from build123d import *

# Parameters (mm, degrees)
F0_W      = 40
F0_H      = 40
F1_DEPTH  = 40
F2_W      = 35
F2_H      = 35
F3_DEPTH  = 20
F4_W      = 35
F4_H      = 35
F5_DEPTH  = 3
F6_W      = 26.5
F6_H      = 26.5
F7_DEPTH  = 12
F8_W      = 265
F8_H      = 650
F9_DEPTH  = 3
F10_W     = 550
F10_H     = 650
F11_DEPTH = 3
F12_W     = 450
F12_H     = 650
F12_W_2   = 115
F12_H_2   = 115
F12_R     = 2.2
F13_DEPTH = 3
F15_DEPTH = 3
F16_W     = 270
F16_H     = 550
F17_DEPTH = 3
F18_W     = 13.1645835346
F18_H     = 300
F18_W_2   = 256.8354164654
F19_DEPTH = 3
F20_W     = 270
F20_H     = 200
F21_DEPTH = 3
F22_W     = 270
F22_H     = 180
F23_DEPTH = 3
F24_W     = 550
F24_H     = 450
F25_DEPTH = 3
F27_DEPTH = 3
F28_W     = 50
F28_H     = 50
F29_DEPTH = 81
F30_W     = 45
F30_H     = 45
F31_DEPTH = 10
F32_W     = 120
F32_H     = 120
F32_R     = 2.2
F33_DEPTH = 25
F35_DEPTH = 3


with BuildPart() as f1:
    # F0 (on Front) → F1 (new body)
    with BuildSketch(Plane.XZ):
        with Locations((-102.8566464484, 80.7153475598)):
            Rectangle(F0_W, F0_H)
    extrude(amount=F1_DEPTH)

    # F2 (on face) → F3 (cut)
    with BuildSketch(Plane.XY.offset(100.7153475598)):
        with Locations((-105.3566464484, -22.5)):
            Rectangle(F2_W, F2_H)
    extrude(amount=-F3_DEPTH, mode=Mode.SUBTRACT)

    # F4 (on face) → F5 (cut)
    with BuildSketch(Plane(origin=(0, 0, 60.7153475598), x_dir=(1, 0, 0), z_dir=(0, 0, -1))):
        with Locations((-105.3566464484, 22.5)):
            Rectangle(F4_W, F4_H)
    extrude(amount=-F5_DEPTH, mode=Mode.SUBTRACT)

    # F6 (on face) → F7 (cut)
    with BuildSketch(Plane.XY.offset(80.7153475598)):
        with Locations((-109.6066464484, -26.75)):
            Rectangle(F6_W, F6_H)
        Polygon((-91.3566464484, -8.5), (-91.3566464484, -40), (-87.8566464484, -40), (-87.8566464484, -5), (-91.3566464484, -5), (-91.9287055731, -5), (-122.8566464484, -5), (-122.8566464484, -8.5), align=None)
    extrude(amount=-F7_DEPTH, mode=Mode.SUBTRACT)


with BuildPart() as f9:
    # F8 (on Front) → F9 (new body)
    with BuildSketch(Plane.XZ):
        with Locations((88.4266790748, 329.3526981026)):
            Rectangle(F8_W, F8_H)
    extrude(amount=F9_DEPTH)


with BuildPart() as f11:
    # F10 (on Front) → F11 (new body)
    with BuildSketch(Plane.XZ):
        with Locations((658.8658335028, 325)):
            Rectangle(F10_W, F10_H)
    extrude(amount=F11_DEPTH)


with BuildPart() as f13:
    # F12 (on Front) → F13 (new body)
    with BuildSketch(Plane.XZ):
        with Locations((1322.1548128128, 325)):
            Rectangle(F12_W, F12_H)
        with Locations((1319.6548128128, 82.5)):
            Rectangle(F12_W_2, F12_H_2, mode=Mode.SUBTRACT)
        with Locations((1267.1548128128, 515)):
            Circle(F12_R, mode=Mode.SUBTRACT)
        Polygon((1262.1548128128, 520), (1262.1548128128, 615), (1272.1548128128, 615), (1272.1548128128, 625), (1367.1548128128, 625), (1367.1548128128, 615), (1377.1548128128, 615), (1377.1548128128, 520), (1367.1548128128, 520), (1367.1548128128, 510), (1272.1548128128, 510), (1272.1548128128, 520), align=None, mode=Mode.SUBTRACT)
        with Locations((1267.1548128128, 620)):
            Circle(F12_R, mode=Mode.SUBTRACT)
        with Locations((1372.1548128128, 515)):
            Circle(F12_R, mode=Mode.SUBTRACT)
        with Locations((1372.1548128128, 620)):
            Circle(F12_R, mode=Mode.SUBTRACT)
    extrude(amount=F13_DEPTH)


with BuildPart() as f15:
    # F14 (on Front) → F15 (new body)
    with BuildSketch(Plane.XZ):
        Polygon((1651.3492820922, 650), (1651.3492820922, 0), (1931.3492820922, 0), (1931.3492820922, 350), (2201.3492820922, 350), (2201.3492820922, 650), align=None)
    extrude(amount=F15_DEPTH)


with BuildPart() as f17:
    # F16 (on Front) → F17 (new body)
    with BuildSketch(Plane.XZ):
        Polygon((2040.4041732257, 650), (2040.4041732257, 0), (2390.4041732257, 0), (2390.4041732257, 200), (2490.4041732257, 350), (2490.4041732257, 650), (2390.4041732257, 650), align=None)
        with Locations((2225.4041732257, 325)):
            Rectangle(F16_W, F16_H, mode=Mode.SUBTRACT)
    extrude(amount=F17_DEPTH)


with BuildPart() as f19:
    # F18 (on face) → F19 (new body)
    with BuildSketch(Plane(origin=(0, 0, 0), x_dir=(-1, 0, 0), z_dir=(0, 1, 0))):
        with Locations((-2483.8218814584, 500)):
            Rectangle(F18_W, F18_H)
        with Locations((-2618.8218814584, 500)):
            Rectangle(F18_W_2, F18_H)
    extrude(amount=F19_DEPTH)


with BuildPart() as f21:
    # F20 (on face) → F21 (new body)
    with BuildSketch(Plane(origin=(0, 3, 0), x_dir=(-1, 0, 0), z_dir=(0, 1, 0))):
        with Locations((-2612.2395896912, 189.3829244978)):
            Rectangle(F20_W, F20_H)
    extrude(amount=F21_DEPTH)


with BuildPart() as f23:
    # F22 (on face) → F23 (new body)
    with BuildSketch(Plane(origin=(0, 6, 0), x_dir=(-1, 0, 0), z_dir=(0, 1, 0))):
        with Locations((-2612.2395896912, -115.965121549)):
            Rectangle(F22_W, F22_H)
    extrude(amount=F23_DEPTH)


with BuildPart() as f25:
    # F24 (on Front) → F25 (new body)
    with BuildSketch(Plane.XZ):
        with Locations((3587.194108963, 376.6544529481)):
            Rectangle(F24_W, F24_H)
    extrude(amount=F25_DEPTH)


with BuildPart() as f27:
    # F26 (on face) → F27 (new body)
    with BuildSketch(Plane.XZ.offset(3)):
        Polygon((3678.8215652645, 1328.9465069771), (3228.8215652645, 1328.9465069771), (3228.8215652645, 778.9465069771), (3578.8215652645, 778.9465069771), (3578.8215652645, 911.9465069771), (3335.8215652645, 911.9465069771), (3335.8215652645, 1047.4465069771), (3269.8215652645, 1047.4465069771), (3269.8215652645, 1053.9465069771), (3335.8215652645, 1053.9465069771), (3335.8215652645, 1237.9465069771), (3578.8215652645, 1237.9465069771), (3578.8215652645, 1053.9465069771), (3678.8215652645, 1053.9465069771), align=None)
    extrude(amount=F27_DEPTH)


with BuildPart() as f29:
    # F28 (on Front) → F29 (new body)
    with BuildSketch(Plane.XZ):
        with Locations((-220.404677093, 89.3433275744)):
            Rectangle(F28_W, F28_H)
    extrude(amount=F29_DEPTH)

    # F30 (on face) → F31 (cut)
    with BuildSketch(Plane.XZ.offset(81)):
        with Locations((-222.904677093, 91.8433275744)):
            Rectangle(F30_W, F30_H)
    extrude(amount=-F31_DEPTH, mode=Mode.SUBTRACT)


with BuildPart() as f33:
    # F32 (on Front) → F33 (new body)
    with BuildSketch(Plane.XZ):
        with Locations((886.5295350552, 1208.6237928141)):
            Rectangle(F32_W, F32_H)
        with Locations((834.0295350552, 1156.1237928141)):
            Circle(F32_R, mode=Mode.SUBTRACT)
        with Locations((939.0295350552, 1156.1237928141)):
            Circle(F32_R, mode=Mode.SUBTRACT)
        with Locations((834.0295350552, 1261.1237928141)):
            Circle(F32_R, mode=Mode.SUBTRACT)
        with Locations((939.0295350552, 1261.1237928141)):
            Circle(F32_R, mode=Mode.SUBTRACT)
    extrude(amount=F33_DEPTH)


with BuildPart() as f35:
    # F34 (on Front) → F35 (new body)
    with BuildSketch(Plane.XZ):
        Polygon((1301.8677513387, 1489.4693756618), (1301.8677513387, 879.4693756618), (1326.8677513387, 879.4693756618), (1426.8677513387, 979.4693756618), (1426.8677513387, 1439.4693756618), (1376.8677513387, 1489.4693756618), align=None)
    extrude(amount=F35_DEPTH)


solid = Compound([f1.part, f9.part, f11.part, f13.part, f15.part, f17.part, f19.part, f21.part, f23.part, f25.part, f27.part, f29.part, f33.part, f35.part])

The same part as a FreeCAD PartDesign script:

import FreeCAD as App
import Part
import Sketcher
Q = App.Units.Quantity

doc = App.newDocument("Part")
body = doc.addObject("PartDesign::Body", "Body")

# Sketch on XZ plane
sketch1 = doc.addObject("Sketcher::SketchObject", "Sketch")
body.addObject(sketch1)
sketch1.AttachmentSupport = (doc.XZ_Plane, [""])
sketch1.MapMode = "FlatFace"
sketch1.addGeometry([
    Part.LineSegment(App.Vector(-123, 101, 0), App.Vector(-123, 61, 0)),
    Part.LineSegment(App.Vector(-123, 61, 0), App.Vector(-83, 61, 0)),
    Part.LineSegment(App.Vector(-83, 61, 0), App.Vector(-83, 101, 0)),
    Part.LineSegment(App.Vector(-83, 101, 0), App.Vector(-123, 101, 0)),
], False)
sketch1.addConstraint([
    Sketcher.Constraint("Coincident", 0, 2, 1, 1),
    Sketcher.Constraint("Coincident", 1, 2, 2, 1),
    Sketcher.Constraint("Coincident", 2, 2, 3, 1),
    Sketcher.Constraint("Coincident", 3, 2, 0, 1),
    Sketcher.Constraint("Vertical", 0),
    Sketcher.Constraint("Horizontal", 1),
    Sketcher.Constraint("Vertical", 2),
    Sketcher.Constraint("Horizontal", 3),
    Sketcher.Constraint("Equal", 3, 0),
    Sketcher.Constraint("DistanceX", 1, 1, 1, 2, 40.0),
    Sketcher.Constraint("DistanceX", 0, 2, -1, 1, 122.856646),
    Sketcher.Constraint("DistanceY", -1, 1, 0, 2, 60.715348),
])
pad1 = doc.addObject("PartDesign::Pad", "Pad")
body.addObject(pad1)
pad1.Profile = sketch1
pad1.Length = 40

# Sketch on XY plane
sketch2 = doc.addObject("Sketcher::SketchObject", "Sketch001")
body.addObject(sketch2)
sketch2.AttachmentSupport = (doc.XY_Plane, [""])
sketch2.MapMode = "FlatFace"
sketch2.AttachmentOffset = App.Placement(App.Vector(0, 0, 100.715348), App.Rotation())
sketch2.addGeometry([
    Part.LineSegment(App.Vector(-123, -5, 0), App.Vector(-123, -40, 0)),
    Part.LineSegment(App.Vector(-123, -40, 0), App.Vector(-88, -40, 0)),
    Part.LineSegment(App.Vector(-88, -40, 0), App.Vector(-88, -5, 0)),
    Part.LineSegment(App.Vector(-88, -5, 0), App.Vector(-123, -5, 0)),
], False)
sketch2.addConstraint([
    Sketcher.Constraint("Coincident", 0, 2, 1, 1),
    Sketcher.Constraint("Coincident", 1, 2, 2, 1),
    Sketcher.Constraint("Coincident", 2, 2, 3, 1),
    Sketcher.Constraint("Coincident", 3, 2, 0, 1),
    Sketcher.Constraint("Vertical", 0),
    Sketcher.Constraint("Horizontal", 1),
    Sketcher.Constraint("Vertical", 2),
    Sketcher.Constraint("Horizontal", 3),
    Sketcher.Constraint("Equal", 3, 0),
    Sketcher.Constraint("DistanceX", 1, 1, 1, 2, 35.0),
    Sketcher.Constraint("DistanceY", 0, 2, -1, 1, 40.0),
    Sketcher.Constraint("DistanceX", 0, 2, -1, 1, 122.856646),
])
pocket1 = doc.addObject("PartDesign::Pocket", "Pocket")
body.addObject(pocket1)
pocket1.Profile = sketch2
pocket1.Length = 20

# Sketch on XY plane
sketch3 = doc.addObject("Sketcher::SketchObject", "Sketch002")
body.addObject(sketch3)
sketch3.AttachmentSupport = (doc.XY_Plane, [""])
sketch3.MapMode = "FlatFace"
sketch3.AttachmentOffset = App.Placement(App.Vector(0, 0, 60.715348), App.Rotation())
sketch3.addGeometry([
    Part.LineSegment(App.Vector(-123, -40, 0), App.Vector(-123, -5, 0)),
    Part.LineSegment(App.Vector(-123, -5, 0), App.Vector(-88, -5, 0)),
    Part.LineSegment(App.Vector(-88, -5, 0), App.Vector(-88, -40, 0)),
    Part.LineSegment(App.Vector(-88, -40, 0), App.Vector(-123, -40, 0)),
], False)
sketch3.addConstraint([
    Sketcher.Constraint("Coincident", 0, 2, 1, 1),
    Sketcher.Constraint("Coincident", 1, 2, 2, 1),
    Sketcher.Constraint("Coincident", 2, 2, 3, 1),
    Sketcher.Constraint("Coincident", 3, 2, 0, 1),
    Sketcher.Constraint("Vertical", 0),
    Sketcher.Constraint("Horizontal", 1),
    Sketcher.Constraint("Vertical", 2),
    Sketcher.Constraint("Horizontal", 3),
    Sketcher.Constraint("Equal", 3, 0),
    Sketcher.Constraint("DistanceX", 1, 1, 1, 2, 35.0),
    Sketcher.Constraint("DistanceY", 0, 2, -1, 1, 5.0),
    Sketcher.Constraint("DistanceX", 0, 2, -1, 1, 122.856646),
])
pocket2 = doc.addObject("PartDesign::Pocket", "Pocket001")
body.addObject(pocket2)
pocket2.Profile = sketch3
pocket2.Length = 3
pocket2.Reversed = True

# Sketch on XY plane
sketch4 = doc.addObject("Sketcher::SketchObject", "Sketch003")
body.addObject(sketch4)
sketch4.AttachmentSupport = (doc.XY_Plane, [""])
sketch4.MapMode = "FlatFace"
sketch4.AttachmentOffset = App.Placement(App.Vector(0, 0, 80.715348), App.Rotation())
sketch4.addGeometry([
    Part.LineSegment(App.Vector(-122.9, -13.5, 0), App.Vector(-122.9, -40, 0)),  # 0
    Part.LineSegment(App.Vector(-122.9, -40, 0), App.Vector(-96.4, -40, 0)),  # 1
    Part.LineSegment(App.Vector(-96.4, -40, 0), App.Vector(-96.4, -13.5, 0)),  # 2
    Part.LineSegment(App.Vector(-96.4, -13.5, 0), App.Vector(-122.9, -13.5, 0)),  # 3
    Part.LineSegment(App.Vector(-91.4, -8.5, 0), App.Vector(-91.4, -40, 0)),  # 4
    Part.LineSegment(App.Vector(-91.4, -40, 0), App.Vector(-87.9, -40, 0)),  # 5
    Part.LineSegment(App.Vector(-87.9, -40, 0), App.Vector(-87.9, -5, 0)),  # 6
    Part.LineSegment(App.Vector(-87.9, -5, 0), App.Vector(-122.9, -5, 0)),  # 7
    Part.LineSegment(App.Vector(-122.9, -5, 0), App.Vector(-122.9, -8.5, 0)),  # 8
    Part.LineSegment(App.Vector(-122.9, -8.5, 0), App.Vector(-91.4, -8.5, 0)),  # 9
], False)
sketch4.addConstraint([
    Sketcher.Constraint("Coincident", 0, 2, 1, 1),
    Sketcher.Constraint("Coincident", 1, 2, 2, 1),
    Sketcher.Constraint("Coincident", 2, 2, 3, 1),
    Sketcher.Constraint("Coincident", 3, 2, 0, 1),
    Sketcher.Constraint("Coincident", 4, 2, 5, 1),
    Sketcher.Constraint("Coincident", 5, 2, 6, 1),
    Sketcher.Constraint("Coincident", 6, 2, 7, 1),
    Sketcher.Constraint("Coincident", 7, 2, 8, 1),
    Sketcher.Constraint("Coincident", 8, 2, 9, 1),
    Sketcher.Constraint("Coincident", 9, 2, 4, 1),
    Sketcher.Constraint("Vertical", 0),
    Sketcher.Constraint("Horizontal", 1),
    Sketcher.Constraint("Vertical", 2),
    Sketcher.Constraint("Horizontal", 3),
    Sketcher.Constraint("Vertical", 4),
    Sketcher.Constraint("Horizontal", 5),
    Sketcher.Constraint("Vertical", 6),
    Sketcher.Constraint("Horizontal", 7),
    Sketcher.Constraint("Vertical", 8),
    Sketcher.Constraint("Horizontal", 9),
    Sketcher.Constraint("Horizontal", 1, 2, 4, 2),
    Sketcher.Constraint("Vertical", 3, 2, 7, 2),
    Sketcher.Constraint("Equal", 3, 0),
    Sketcher.Constraint("Equal", 9, 4),
    Sketcher.Constraint("Equal", 7, 6),
    Sketcher.Constraint("DistanceX", 7, 2, 7, 1, 35.0),
    Sketcher.Constraint("DistanceX", 1, 1, 1, 2, 26.5),
    Sketcher.Constraint("DistanceX", 5, 1, 5, 2, 3.5),
    Sketcher.Constraint("DistanceY", 0, 2, -1, 1, 40.0),
    Sketcher.Constraint("DistanceX", 0, 2, -1, 1, 122.856646),
])
pocket3 = doc.addObject("PartDesign::Pocket", "Pocket002")
body.addObject(pocket3)
pocket3.Profile = sketch4
pocket3.Length = 12
body2 = doc.addObject("PartDesign::Body", "Body001")

# Sketch on XZ plane
sketch5 = doc.addObject("Sketcher::SketchObject", "Sketch004")
body2.addObject(sketch5)
sketch5.AttachmentSupport = (doc.getObject("XZ_Plane001"), [""])
sketch5.MapMode = "FlatFace"
sketch5.addGeometry([
    Part.LineSegment(App.Vector(-44, 654, 0), App.Vector(-44, 4, 0)),
    Part.LineSegment(App.Vector(-44, 4, 0), App.Vector(221, 4, 0)),
    Part.LineSegment(App.Vector(221, 4, 0), App.Vector(221, 654, 0)),
    Part.LineSegment(App.Vector(221, 654, 0), App.Vector(-44, 654, 0)),
], False)
sketch5.addConstraint([
    Sketcher.Constraint("Coincident", 0, 2, 1, 1),
    Sketcher.Constraint("Coincident", 1, 2, 2, 1),
    Sketcher.Constraint("Coincident", 2, 2, 3, 1),
    Sketcher.Constraint("Coincident", 3, 2, 0, 1),
    Sketcher.Constraint("Vertical", 0),
    Sketcher.Constraint("Horizontal", 1),
    Sketcher.Constraint("Vertical", 2),
    Sketcher.Constraint("Horizontal", 3),
    Sketcher.Constraint("DistanceX", 1, 1, 1, 2, 265.0),
    Sketcher.Constraint("DistanceY", 0, 2, 0, 1, 650.0),
    Sketcher.Constraint("DistanceY", -1, 1, 0, 2, 4.352698),
    Sketcher.Constraint("DistanceX", 0, 2, -1, 1, 44.073321),
])
pad2 = doc.addObject("PartDesign::Pad", "Pad001")
body2.addObject(pad2)
pad2.Profile = sketch5
pad2.Length = 3
body3 = doc.addObject("PartDesign::Body", "Body002")

# Sketch on XZ plane
sketch6 = doc.addObject("Sketcher::SketchObject", "Sketch005")
body3.addObject(sketch6)
sketch6.AttachmentSupport = (doc.getObject("XZ_Plane002"), [""])
sketch6.MapMode = "FlatFace"
sketch6.addGeometry([
    Part.LineSegment(App.Vector(384, 650, 0), App.Vector(384, 0, 0)),
    Part.LineSegment(App.Vector(384, 0, 0), App.Vector(934, 0, 0)),
    Part.LineSegment(App.Vector(934, 0, 0), App.Vector(934, 650, 0)),
    Part.LineSegment(App.Vector(934, 650, 0), App.Vector(384, 650, 0)),
], False)
sketch6.addConstraint([
    Sketcher.Constraint("Coincident", 0, 2, 1, 1),
    Sketcher.Constraint("Coincident", 1, 2, 2, 1),
    Sketcher.Constraint("Coincident", 2, 2, 3, 1),
    Sketcher.Constraint("Coincident", 3, 2, 0, 1),
    Sketcher.Constraint("Vertical", 0),
    Sketcher.Constraint("Horizontal", 1),
    Sketcher.Constraint("Vertical", 2),
    Sketcher.Constraint("Horizontal", 3),
    Sketcher.Constraint("PointOnObject", 0, 2, -1),
    Sketcher.Constraint("DistanceX", 1, 1, 1, 2, 550.0),
    Sketcher.Constraint("DistanceY", 0, 2, 0, 1, 650.0),
    Sketcher.Constraint("DistanceX", -1, 1, 0, 2, 383.865834),
])
pad3 = doc.addObject("PartDesign::Pad", "Pad002")
body3.addObject(pad3)
pad3.Profile = sketch6
pad3.Length = 3
body4 = doc.addObject("PartDesign::Body", "Body003")

# Sketch on XZ plane
sketch7 = doc.addObject("Sketcher::SketchObject", "Sketch006")
body4.addObject(sketch7)
sketch7.AttachmentSupport = (doc.getObject("XZ_Plane003"), [""])
sketch7.MapMode = "FlatFace"
sketch7.addGeometry([
    Part.LineSegment(App.Vector(1097.2, 650, 0), App.Vector(1097.2, 0, 0)),  # 0
    Part.LineSegment(App.Vector(1097.2, 0, 0), App.Vector(1547.2, 0, 0)),  # 1
    Part.LineSegment(App.Vector(1547.2, 0, 0), App.Vector(1547.2, 650, 0)),  # 2
    Part.LineSegment(App.Vector(1547.2, 650, 0), App.Vector(1097.2, 650, 0)),  # 3
    Part.LineSegment(App.Vector(1377.2, 25, 0), App.Vector(1262.2, 25, 0)),  # 4
    Part.LineSegment(App.Vector(1262.2, 25, 0), App.Vector(1262.2, 140, 0)),  # 5
    Part.LineSegment(App.Vector(1262.2, 140, 0), App.Vector(1377.2, 140, 0)),  # 6
    Part.LineSegment(App.Vector(1377.2, 140, 0), App.Vector(1377.2, 25, 0)),  # 7
    Part.Circle(App.Vector(1267.2, 515, 0), App.Vector(0, 0, 1), 2.2),  # 8
    Part.Circle(App.Vector(1267.2, 620, 0), App.Vector(0, 0, 1), 2.2),  # 9
    Part.LineSegment(App.Vector(1272.2, 520, 0), App.Vector(1262.2, 520, 0)),  # 10
    Part.LineSegment(App.Vector(1262.2, 520, 0), App.Vector(1262.2, 615, 0)),  # 11
    Part.LineSegment(App.Vector(1262.2, 615, 0), App.Vector(1272.2, 615, 0)),  # 12
    Part.LineSegment(App.Vector(1272.2, 615, 0), App.Vector(1272.2, 625, 0)),  # 13
    Part.LineSegment(App.Vector(1272.2, 625, 0), App.Vector(1367.2, 625, 0)),  # 14
    Part.LineSegment(App.Vector(1367.2, 625, 0), App.Vector(1367.2, 615, 0)),  # 15
    Part.LineSegment(App.Vector(1367.2, 615, 0), App.Vector(1377.2, 615, 0)),  # 16
    Part.LineSegment(App.Vector(1377.2, 615, 0), App.Vector(1377.2, 520, 0)),  # 17
    Part.LineSegment(App.Vector(1377.2, 520, 0), App.Vector(1367.2, 520, 0)),  # 18
    Part.LineSegment(App.Vector(1367.2, 520, 0), App.Vector(1367.2, 510, 0)),  # 19
    Part.LineSegment(App.Vector(1367.2, 510, 0), App.Vector(1272.2, 510, 0)),  # 20
    Part.LineSegment(App.Vector(1272.2, 510, 0), App.Vector(1272.2, 520, 0)),  # 21
    Part.Circle(App.Vector(1372.2, 515, 0), App.Vector(0, 0, 1), 2.2),  # 22
    Part.Circle(App.Vector(1372.2, 620, 0), App.Vector(0, 0, 1), 2.2),  # 23
], False)
sketch7.addConstraint([
    Sketcher.Constraint("Coincident", 0, 2, 1, 1),
    Sketcher.Constraint("Coincident", 1, 2, 2, 1),
    Sketcher.Constraint("Coincident", 2, 2, 3, 1),
    Sketcher.Constraint("Coincident", 3, 2, 0, 1),
    Sketcher.Constraint("Coincident", 4, 2, 5, 1),
    Sketcher.Constraint("Coincident", 5, 2, 6, 1),
    Sketcher.Constraint("Coincident", 6, 2, 7, 1),
    Sketcher.Constraint("Coincident", 7, 2, 4, 1),
    Sketcher.Constraint("Coincident", 10, 2, 11, 1),
    Sketcher.Constraint("Coincident", 11, 2, 12, 1),
    Sketcher.Constraint("Coincident", 12, 2, 13, 1),
    Sketcher.Constraint("Coincident", 13, 2, 14, 1),
    Sketcher.Constraint("Coincident", 14, 2, 15, 1),
    Sketcher.Constraint("Coincident", 15, 2, 16, 1),
    Sketcher.Constraint("Coincident", 16, 2, 17, 1),
    Sketcher.Constraint("Coincident", 17, 2, 18, 1),
    Sketcher.Constraint("Coincident", 18, 2, 19, 1),
    Sketcher.Constraint("Coincident", 19, 2, 20, 1),
    Sketcher.Constraint("Coincident", 20, 2, 21, 1),
    Sketcher.Constraint("Coincident", 21, 2, 10, 1),
    Sketcher.Constraint("Vertical", 0),
    Sketcher.Constraint("Horizontal", 1),
    Sketcher.Constraint("Vertical", 2),
    Sketcher.Constraint("Horizontal", 3),
    Sketcher.Constraint("Horizontal", 4),
    Sketcher.Constraint("Vertical", 5),
    Sketcher.Constraint("Horizontal", 6),
    Sketcher.Constraint("Vertical", 7),
    Sketcher.Constraint("Horizontal", 10),
    Sketcher.Constraint("Vertical", 11),
    Sketcher.Constraint("Horizontal", 12),
    Sketcher.Constraint("Vertical", 13),
    Sketcher.Constraint("Horizontal", 14),
    Sketcher.Constraint("Vertical", 15),
    Sketcher.Constraint("Horizontal", 16),
    Sketcher.Constraint("Vertical", 17),
    Sketcher.Constraint("Horizontal", 18),
    Sketcher.Constraint("Vertical", 19),
    Sketcher.Constraint("Horizontal", 20),
    Sketcher.Constraint("Vertical", 21),
    Sketcher.Constraint("Equal", 8, 9),
    Sketcher.Constraint("Equal", 9, 22),
    Sketcher.Constraint("Equal", 22, 23),
    Sketcher.Constraint("PointOnObject", 0, 2, -1),
    Sketcher.Constraint("Horizontal", 8, 3, 22, 3),
    Sketcher.Constraint("Horizontal", 9, 3, 23, 3),
    Sketcher.Constraint("Horizontal", 12, 2, 15, 2),
    Sketcher.Constraint("Horizontal", 10, 2, 17, 2),
    Sketcher.Constraint("Vertical", 8, 3, 9, 3),
    Sketcher.Constraint("Vertical", 22, 3, 23, 3),
    Sketcher.Constraint("Vertical", 5, 2, 10, 2),
    Sketcher.Constraint("Vertical", 7, 2, 16, 2),
    Sketcher.Constraint("Vertical", 15, 2, 18, 2),
    Sketcher.Constraint("Vertical", 13, 2, 20, 2),
    Sketcher.Constraint("Equal", 12, 16),
    Sketcher.Constraint("Equal", 6, 5),
    Sketcher.Constraint("Equal", 20, 11),
    Sketcher.Constraint("Equal", 18, 13),
    Sketcher.Constraint("Equal", 15, 19),
    Sketcher.Constraint("Diameter", 8, 4.4),
    Sketcher.Constraint("DistanceX", 1, 1, 1, 2, 450.0),
    Sketcher.Constraint("DistanceX", 4, 2, 4, 1, 115.0),
    Sketcher.Constraint("DistanceX", 10, 2, 10, 1, 10.0),
    Sketcher.Constraint("DistanceY", 0, 2, 0, 1, 650.0),
    Sketcher.Constraint("DistanceY", -1, 1, 8, 3, 515.0),
    Sketcher.Constraint("DistanceY", -1, 1, 9, 3, 620.0),
    Sketcher.Constraint("DistanceY", -1, 1, 4, 2, 25.0),
    Sketcher.Constraint("DistanceY", -1, 1, 10, 2, 520.0),
    Sketcher.Constraint("DistanceX", 8, 3, 22, 3, 105.0),
    Sketcher.Constraint("DistanceX", 0, 2, 8, 3, 170.0),
    Sketcher.Constraint("DistanceX", 0, 2, 4, 2, 165.0),
    Sketcher.Constraint("DistanceX", -1, 1, 8, 3, 1267.154813),
])
pad4 = doc.addObject("PartDesign::Pad", "Pad003")
body4.addObject(pad4)
pad4.Profile = sketch7
pad4.Length = 3
body5 = doc.addObject("PartDesign::Body", "Body004")

# Sketch on XZ plane
sketch8 = doc.addObject("Sketcher::SketchObject", "Sketch007")
body5.addObject(sketch8)
sketch8.AttachmentSupport = (doc.getObject("XZ_Plane004"), [""])
sketch8.MapMode = "FlatFace"
sketch8.addGeometry([
    Part.LineSegment(App.Vector(1651, 650, 0), App.Vector(1651, 0, 0)),  # 0
    Part.LineSegment(App.Vector(1651, 0, 0), App.Vector(1931, 0, 0)),  # 1
    Part.LineSegment(App.Vector(1931, 0, 0), App.Vector(1931, 350, 0)),  # 2
    Part.LineSegment(App.Vector(1931, 350, 0), App.Vector(2201, 350, 0)),  # 3
    Part.LineSegment(App.Vector(2201, 350, 0), App.Vector(2201, 650, 0)),  # 4
    Part.LineSegment(App.Vector(2201, 650, 0), App.Vector(1651, 650, 0)),  # 5
], False)
sketch8.addConstraint([
    Sketcher.Constraint("Coincident", 0, 2, 1, 1),
    Sketcher.Constraint("Coincident", 1, 2, 2, 1),
    Sketcher.Constraint("Coincident", 2, 2, 3, 1),
    Sketcher.Constraint("Coincident", 3, 2, 4, 1),
    Sketcher.Constraint("Coincident", 4, 2, 5, 1),
    Sketcher.Constraint("Coincident", 5, 2, 0, 1),
    Sketcher.Constraint("Vertical", 0),
    Sketcher.Constraint("Horizontal", 1),
    Sketcher.Constraint("Vertical", 2),
    Sketcher.Constraint("Horizontal", 3),
    Sketcher.Constraint("Vertical", 4),
    Sketcher.Constraint("Horizontal", 5),
    Sketcher.Constraint("PointOnObject", 0, 2, -1),
    Sketcher.Constraint("DistanceX", 1, 1, 1, 2, 280.0),
    Sketcher.Constraint("DistanceX", 3, 1, 3, 2, 270.0),
    Sketcher.Constraint("DistanceY", 0, 2, 0, 1, 650.0),
    Sketcher.Constraint("DistanceY", 2, 1, 2, 2, 350.0),
    Sketcher.Constraint("DistanceX", -1, 1, 0, 2, 1651.349282),
])
pad5 = doc.addObject("PartDesign::Pad", "Pad004")
body5.addObject(pad5)
pad5.Profile = sketch8
pad5.Length = 3
body6 = doc.addObject("PartDesign::Body", "Body005")

# Sketch on XZ plane
sketch9 = doc.addObject("Sketcher::SketchObject", "Sketch008")
body6.addObject(sketch9)
sketch9.AttachmentSupport = (doc.getObject("XZ_Plane005"), [""])
sketch9.MapMode = "FlatFace"
sketch9.addGeometry([
    Part.LineSegment(App.Vector(2040, 650, 0), App.Vector(2040, 0, 0)),  # 0
    Part.LineSegment(App.Vector(2040, 0, 0), App.Vector(2390, 0, 0)),  # 1
    Part.LineSegment(App.Vector(2390, 0, 0), App.Vector(2390, 200, 0)),  # 2
    Part.LineSegment(App.Vector(2390, 200, 0), App.Vector(2490, 350, 0)),  # 3
    Part.LineSegment(App.Vector(2490, 350, 0), App.Vector(2490, 650, 0)),  # 4
    Part.LineSegment(App.Vector(2490, 650, 0), App.Vector(2040, 650, 0)),  # 5
    Part.LineSegment(App.Vector(2360, 50, 0), App.Vector(2090, 50, 0)),  # 6
    Part.LineSegment(App.Vector(2090, 50, 0), App.Vector(2090, 600, 0)),  # 7
    Part.LineSegment(App.Vector(2090, 600, 0), App.Vector(2360, 600, 0)),  # 8
    Part.LineSegment(App.Vector(2360, 600, 0), App.Vector(2360, 50, 0)),  # 9
], False)
sketch9.addConstraint([
    Sketcher.Constraint("Coincident", 0, 2, 1, 1),
    Sketcher.Constraint("Coincident", 1, 2, 2, 1),
    Sketcher.Constraint("Coincident", 2, 2, 3, 1),
    Sketcher.Constraint("Coincident", 3, 2, 4, 1),
    Sketcher.Constraint("Coincident", 4, 2, 5, 1),
    Sketcher.Constraint("Coincident", 5, 2, 0, 1),
    Sketcher.Constraint("Coincident", 6, 2, 7, 1),
    Sketcher.Constraint("Coincident", 7, 2, 8, 1),
    Sketcher.Constraint("Coincident", 8, 2, 9, 1),
    Sketcher.Constraint("Coincident", 9, 2, 6, 1),
    Sketcher.Constraint("Vertical", 0),
    Sketcher.Constraint("Horizontal", 1),
    Sketcher.Constraint("Vertical", 2),
    Sketcher.Constraint("Vertical", 4),
    Sketcher.Constraint("Horizontal", 5),
    Sketcher.Constraint("Horizontal", 6),
    Sketcher.Constraint("Vertical", 7),
    Sketcher.Constraint("Horizontal", 8),
    Sketcher.Constraint("Vertical", 9),
    Sketcher.Constraint("PointOnObject", 0, 2, -1),
    Sketcher.Constraint("DistanceX", 1, 1, 1, 2, 350.0),
    Sketcher.Constraint("DistanceX", 5, 2, 5, 1, 450.0),
    Sketcher.Constraint("DistanceX", 6, 2, 6, 1, 270.0),
    Sketcher.Constraint("DistanceY", 0, 2, 0, 1, 650.0),
    Sketcher.Constraint("DistanceY", 2, 1, 2, 2, 200.0),
    Sketcher.Constraint("DistanceY", 4, 1, 4, 2, 300.0),
    Sketcher.Constraint("DistanceY", 7, 1, 7, 2, 550.0),
    Sketcher.Constraint("DistanceY", -1, 1, 6, 2, 50.0),
    Sketcher.Constraint("DistanceX", 0, 2, 6, 2, 50.0),
    Sketcher.Constraint("DistanceX", -1, 1, 0, 2, 2040.404173),
])
pad6 = doc.addObject("PartDesign::Pad", "Pad005")
body6.addObject(pad6)
pad6.Profile = sketch9
pad6.Length = 3
body7 = doc.addObject("PartDesign::Body", "Body006")

# Sketch on XZ plane
sketch10 = doc.addObject("Sketcher::SketchObject", "Sketch009")
body7.addObject(sketch10)
sketch10.AttachmentSupport = (doc.getObject("XZ_Plane006"), [""])
sketch10.MapMode = "FlatFace"
sketch10.addGeometry([
    Part.LineSegment(App.Vector(2477, 350, 0), App.Vector(2477, 650, 0)),
    Part.LineSegment(App.Vector(2477, 650, 0), App.Vector(2747, 650, 0)),
    Part.LineSegment(App.Vector(2747, 650, 0), App.Vector(2747, 350, 0)),
    Part.LineSegment(App.Vector(2747, 350, 0), App.Vector(2477, 350, 0)),
], False)
sketch10.addConstraint([
    Sketcher.Constraint("Coincident", 0, 2, 1, 1),
    Sketcher.Constraint("Coincident", 1, 2, 2, 1),
    Sketcher.Constraint("Coincident", 2, 2, 3, 1),
    Sketcher.Constraint("Coincident", 3, 2, 0, 1),
    Sketcher.Constraint("Vertical", 0),
    Sketcher.Constraint("Horizontal", 1),
    Sketcher.Constraint("Vertical", 2),
    Sketcher.Constraint("Horizontal", 3),
    Sketcher.Constraint("DistanceX", 1, 1, 1, 2, 270.0),
    Sketcher.Constraint("DistanceY", 0, 1, 0, 2, 300.0),
    Sketcher.Constraint("DistanceY", -1, 1, 0, 2, 650.0),
    Sketcher.Constraint("DistanceX", -1, 1, 0, 2, 2477.23959),
])
pad7 = doc.addObject("PartDesign::Pad", "Pad006")
body7.addObject(pad7)
pad7.Profile = sketch10
pad7.Length = 3
pad7.Reversed = True
body8 = doc.addObject("PartDesign::Body", "Body007")

# Sketch on XZ plane
sketch11 = doc.addObject("Sketcher::SketchObject", "Sketch010")
body8.addObject(sketch11)
sketch11.AttachmentSupport = (doc.getObject("XZ_Plane007"), [""])
sketch11.MapMode = "FlatFace"
sketch11.AttachmentOffset = App.Placement(App.Vector(0, 0, -3), App.Rotation())
sketch11.addGeometry([
    Part.LineSegment(App.Vector(2747, 289, 0), App.Vector(2747, 89, 0)),
    Part.LineSegment(App.Vector(2747, 89, 0), App.Vector(2477, 89, 0)),
    Part.LineSegment(App.Vector(2477, 89, 0), App.Vector(2477, 289, 0)),
    Part.LineSegment(App.Vector(2477, 289, 0), App.Vector(2747, 289, 0)),
], False)
sketch11.addConstraint([
    Sketcher.Constraint("Coincident", 0, 2, 1, 1),
    Sketcher.Constraint("Coincident", 1, 2, 2, 1),
    Sketcher.Constraint("Coincident", 2, 2, 3, 1),
    Sketcher.Constraint("Coincident", 3, 2, 0, 1),
    Sketcher.Constraint("Vertical", 0),
    Sketcher.Constraint("Horizontal", 1),
    Sketcher.Constraint("Vertical", 2),
    Sketcher.Constraint("Horizontal", 3),
    Sketcher.Constraint("DistanceX", 1, 2, 1, 1, 270.0),
    Sketcher.Constraint("DistanceY", 0, 2, 0, 1, 200.0),
    Sketcher.Constraint("DistanceX", -1, 1, 0, 2, 2747.23959),
    Sketcher.Constraint("DistanceY", -1, 1, 0, 2, 89.382924),
])
pad8 = doc.addObject("PartDesign::Pad", "Pad007")
body8.addObject(pad8)
pad8.Profile = sketch11
pad8.Length = 3
pad8.Reversed = True
body9 = doc.addObject("PartDesign::Body", "Body008")

# Sketch on XZ plane
sketch12 = doc.addObject("Sketcher::SketchObject", "Sketch011")
body9.addObject(sketch12)
sketch12.AttachmentSupport = (doc.getObject("XZ_Plane008"), [""])
sketch12.MapMode = "FlatFace"
sketch12.AttachmentOffset = App.Placement(App.Vector(0, 0, -6), App.Rotation())
sketch12.addGeometry([
    Part.LineSegment(App.Vector(2747, -26, 0), App.Vector(2747, -206, 0)),
    Part.LineSegment(App.Vector(2747, -206, 0), App.Vector(2477, -206, 0)),
    Part.LineSegment(App.Vector(2477, -206, 0), App.Vector(2477, -26, 0)),
    Part.LineSegment(App.Vector(2477, -26, 0), App.Vector(2747, -26, 0)),
], False)
sketch12.addConstraint([
    Sketcher.Constraint("Coincident", 0, 2, 1, 1),
    Sketcher.Constraint("Coincident", 1, 2, 2, 1),
    Sketcher.Constraint("Coincident", 2, 2, 3, 1),
    Sketcher.Constraint("Coincident", 3, 2, 0, 1),
    Sketcher.Constraint("Vertical", 0),
    Sketcher.Constraint("Horizontal", 1),
    Sketcher.Constraint("Vertical", 2),
    Sketcher.Constraint("Horizontal", 3),
    Sketcher.Constraint("DistanceX", 1, 2, 1, 1, 270.0),
    Sketcher.Constraint("DistanceY", 0, 2, 0, 1, 180.0),
    Sketcher.Constraint("DistanceX", -1, 1, 0, 2, 2747.23959),
    Sketcher.Constraint("DistanceY", 0, 2, -1, 1, 205.965122),
])
pad9 = doc.addObject("PartDesign::Pad", "Pad008")
body9.addObject(pad9)
pad9.Profile = sketch12
pad9.Length = 3
pad9.Reversed = True
body10 = doc.addObject("PartDesign::Body", "Body009")

# Sketch on XZ plane
sketch13 = doc.addObject("Sketcher::SketchObject", "Sketch012")
body10.addObject(sketch13)
sketch13.AttachmentSupport = (doc.getObject("XZ_Plane009"), [""])
sketch13.MapMode = "FlatFace"
sketch13.addGeometry([
    Part.LineSegment(App.Vector(3312, 602, 0), App.Vector(3312, 152, 0)),
    Part.LineSegment(App.Vector(3312, 152, 0), App.Vector(3862, 152, 0)),
    Part.LineSegment(App.Vector(3862, 152, 0), App.Vector(3862, 602, 0)),
    Part.LineSegment(App.Vector(3862, 602, 0), App.Vector(3312, 602, 0)),
], False)
sketch13.addConstraint([
    Sketcher.Constraint("Coincident", 0, 2, 1, 1),
    Sketcher.Constraint("Coincident", 1, 2, 2, 1),
    Sketcher.Constraint("Coincident", 2, 2, 3, 1),
    Sketcher.Constraint("Coincident", 3, 2, 0, 1),
    Sketcher.Constraint("Vertical", 0),
    Sketcher.Constraint("Horizontal", 1),
    Sketcher.Constraint("Vertical", 2),
    Sketcher.Constraint("Horizontal", 3),
    Sketcher.Constraint("DistanceX", 1, 1, 1, 2, 550.0),
    Sketcher.Constraint("DistanceY", 0, 2, 0, 1, 450.0),
    Sketcher.Constraint("DistanceX", -1, 1, 0, 2, 3312.194109),
    Sketcher.Constraint("DistanceY", -1, 1, 0, 2, 151.654453),
])
pad10 = doc.addObject("PartDesign::Pad", "Pad009")
body10.addObject(pad10)
pad10.Profile = sketch13
pad10.Length = 3
body11 = doc.addObject("PartDesign::Body", "Body010")

# Sketch on XZ plane
sketch14 = doc.addObject("Sketcher::SketchObject", "Sketch013")
body11.addObject(sketch14)
sketch14.AttachmentSupport = (doc.getObject("XZ_Plane010"), [""])
sketch14.MapMode = "FlatFace"
sketch14.AttachmentOffset = App.Placement(App.Vector(0, 0, 3), App.Rotation())
sketch14.addGeometry([
    Part.LineSegment(App.Vector(3679, 1329, 0), App.Vector(3229, 1329, 0)),  # 0
    Part.LineSegment(App.Vector(3229, 1329, 0), App.Vector(3229, 779, 0)),  # 1
    Part.LineSegment(App.Vector(3229, 779, 0), App.Vector(3579, 779, 0)),  # 2
    Part.LineSegment(App.Vector(3579, 779, 0), App.Vector(3579, 912, 0)),  # 3
    Part.LineSegment(App.Vector(3579, 912, 0), App.Vector(3336, 912, 0)),  # 4
    Part.LineSegment(App.Vector(3336, 912, 0), App.Vector(3336, 1047, 0)),  # 5
    Part.LineSegment(App.Vector(3336, 1047, 0), App.Vector(3270, 1047, 0)),  # 6
    Part.LineSegment(App.Vector(3270, 1047, 0), App.Vector(3270, 1054, 0)),  # 7
    Part.LineSegment(App.Vector(3270, 1054, 0), App.Vector(3336, 1054, 0)),  # 8
    Part.LineSegment(App.Vector(3336, 1054, 0), App.Vector(3336, 1238, 0)),  # 9
    Part.LineSegment(App.Vector(3336, 1238, 0), App.Vector(3579, 1238, 0)),  # 10
    Part.LineSegment(App.Vector(3579, 1238, 0), App.Vector(3579, 1054, 0)),  # 11
    Part.LineSegment(App.Vector(3579, 1054, 0), App.Vector(3679, 1054, 0)),  # 12
    Part.LineSegment(App.Vector(3679, 1054, 0), App.Vector(3679, 1329, 0)),  # 13
], False)
sketch14.addConstraint([
    Sketcher.Constraint("Coincident", 0, 2, 1, 1),
    Sketcher.Constraint("Coincident", 1, 2, 2, 1),
    Sketcher.Constraint("Coincident", 2, 2, 3, 1),
    Sketcher.Constraint("Coincident", 3, 2, 4, 1),
    Sketcher.Constraint("Coincident", 4, 2, 5, 1),
    Sketcher.Constraint("Coincident", 5, 2, 6, 1),
    Sketcher.Constraint("Coincident", 6, 2, 7, 1),
    Sketcher.Constraint("Coincident", 7, 2, 8, 1),
    Sketcher.Constraint("Coincident", 8, 2, 9, 1),
    Sketcher.Constraint("Coincident", 9, 2, 10, 1),
    Sketcher.Constraint("Coincident", 10, 2, 11, 1),
    Sketcher.Constraint("Coincident", 11, 2, 12, 1),
    Sketcher.Constraint("Coincident", 12, 2, 13, 1),
    Sketcher.Constraint("Coincident", 13, 2, 0, 1),
    Sketcher.Constraint("Horizontal", 0),
    Sketcher.Constraint("Vertical", 1),
    Sketcher.Constraint("Horizontal", 2),
    Sketcher.Constraint("Vertical", 3),
    Sketcher.Constraint("Horizontal", 4),
    Sketcher.Constraint("Vertical", 5),
    Sketcher.Constraint("Horizontal", 6),
    Sketcher.Constraint("Vertical", 7),
    Sketcher.Constraint("Horizontal", 8),
    Sketcher.Constraint("Vertical", 9),
    Sketcher.Constraint("Horizontal", 10),
    Sketcher.Constraint("Vertical", 11),
    Sketcher.Constraint("Horizontal", 12),
    Sketcher.Constraint("Vertical", 13),
    Sketcher.Constraint("Horizontal", 8, 2, 11, 2),
    Sketcher.Constraint("Vertical", 5, 2, 8, 2),
    Sketcher.Constraint("Vertical", 3, 2, 10, 2),
    Sketcher.Constraint("DistanceX", 0, 2, 0, 1, 450.0),
    Sketcher.Constraint("DistanceX", 2, 1, 2, 2, 350.0),
    Sketcher.Constraint("DistanceX", 4, 2, 4, 1, 243.0),
    Sketcher.Constraint("DistanceX", 6, 2, 6, 1, 66.0),
    Sketcher.Constraint("DistanceY", 1, 2, 1, 1, 550.0),
    Sketcher.Constraint("DistanceY", 3, 1, 3, 2, 133.0),
    Sketcher.Constraint("DistanceY", 9, 1, 9, 2, 184.0),
    Sketcher.Constraint("DistanceY", 13, 1, 13, 2, 275.0),
    Sketcher.Constraint("DistanceY", 5, 1, 5, 2, 135.5),
    Sketcher.Constraint("DistanceX", -1, 1, 0, 2, 3228.821565),
    Sketcher.Constraint("DistanceY", -1, 1, 0, 2, 1328.946507),
])
pad11 = doc.addObject("PartDesign::Pad", "Pad010")
body11.addObject(pad11)
pad11.Profile = sketch14
pad11.Length = 3
body12 = doc.addObject("PartDesign::Body", "Body011")

# Sketch on XZ plane
sketch15 = doc.addObject("Sketcher::SketchObject", "Sketch014")
body12.addObject(sketch15)
sketch15.AttachmentSupport = (doc.getObject("XZ_Plane011"), [""])
sketch15.MapMode = "FlatFace"
sketch15.addGeometry([
    Part.LineSegment(App.Vector(-245, 114, 0), App.Vector(-245, 64, 0)),
    Part.LineSegment(App.Vector(-245, 64, 0), App.Vector(-195, 64, 0)),
    Part.LineSegment(App.Vector(-195, 64, 0), App.Vector(-195, 114, 0)),
    Part.LineSegment(App.Vector(-195, 114, 0), App.Vector(-245, 114, 0)),
], False)
sketch15.addConstraint([
    Sketcher.Constraint("Coincident", 0, 2, 1, 1),
    Sketcher.Constraint("Coincident", 1, 2, 2, 1),
    Sketcher.Constraint("Coincident", 2, 2, 3, 1),
    Sketcher.Constraint("Coincident", 3, 2, 0, 1),
    Sketcher.Constraint("Vertical", 0),
    Sketcher.Constraint("Horizontal", 1),
    Sketcher.Constraint("Vertical", 2),
    Sketcher.Constraint("Horizontal", 3),
    Sketcher.Constraint("Equal", 3, 0),
    Sketcher.Constraint("DistanceX", 1, 1, 1, 2, 50.0),
    Sketcher.Constraint("DistanceX", 0, 2, -1, 1, 245.404677),
    Sketcher.Constraint("DistanceY", -1, 1, 0, 2, 64.343328),
])
pad12 = doc.addObject("PartDesign::Pad", "Pad011")
body12.addObject(pad12)
pad12.Profile = sketch15
pad12.Length = 81

# Sketch on XZ plane
sketch16 = doc.addObject("Sketcher::SketchObject", "Sketch015")
body12.addObject(sketch16)
sketch16.AttachmentSupport = (doc.getObject("XZ_Plane011"), [""])
sketch16.MapMode = "FlatFace"
sketch16.AttachmentOffset = App.Placement(App.Vector(0, 0, 81), App.Rotation())
sketch16.addGeometry([
    Part.LineSegment(App.Vector(-245, 114, 0), App.Vector(-245, 69, 0)),
    Part.LineSegment(App.Vector(-245, 69, 0), App.Vector(-200, 69, 0)),
    Part.LineSegment(App.Vector(-200, 69, 0), App.Vector(-200, 114, 0)),
    Part.LineSegment(App.Vector(-200, 114, 0), App.Vector(-245, 114, 0)),
], False)
sketch16.addConstraint([
    Sketcher.Constraint("Coincident", 0, 2, 1, 1),
    Sketcher.Constraint("Coincident", 1, 2, 2, 1),
    Sketcher.Constraint("Coincident", 2, 2, 3, 1),
    Sketcher.Constraint("Coincident", 3, 2, 0, 1),
    Sketcher.Constraint("Vertical", 0),
    Sketcher.Constraint("Horizontal", 1),
    Sketcher.Constraint("Vertical", 2),
    Sketcher.Constraint("Horizontal", 3),
    Sketcher.Constraint("Equal", 3, 0),
    Sketcher.Constraint("DistanceX", 1, 1, 1, 2, 45.0),
    Sketcher.Constraint("DistanceX", 0, 2, -1, 1, 245.404677),
    Sketcher.Constraint("DistanceY", -1, 1, 0, 2, 69.343328),
])
pocket4 = doc.addObject("PartDesign::Pocket", "Pocket003")
body12.addObject(pocket4)
pocket4.Profile = sketch16
pocket4.Length = 10
body13 = doc.addObject("PartDesign::Body", "Body012")

# Sketch on XZ plane
sketch17 = doc.addObject("Sketcher::SketchObject", "Sketch016")
body13.addObject(sketch17)
sketch17.AttachmentSupport = (doc.getObject("XZ_Plane012"), [""])
sketch17.MapMode = "FlatFace"
sketch17.addGeometry([
    Part.LineSegment(App.Vector(826.5, 1268.6, 0), App.Vector(826.5, 1148.6, 0)),  # 0
    Part.LineSegment(App.Vector(826.5, 1148.6, 0), App.Vector(946.5, 1148.6, 0)),  # 1
    Part.LineSegment(App.Vector(946.5, 1148.6, 0), App.Vector(946.5, 1268.6, 0)),  # 2
    Part.LineSegment(App.Vector(946.5, 1268.6, 0), App.Vector(826.5, 1268.6, 0)),  # 3
    Part.Circle(App.Vector(834, 1156.1, 0), App.Vector(0, 0, 1), 2.2),  # 4
    Part.Circle(App.Vector(939, 1156.1, 0), App.Vector(0, 0, 1), 2.2),  # 5
    Part.Circle(App.Vector(834, 1261.1, 0), App.Vector(0, 0, 1), 2.2),  # 6
    Part.Circle(App.Vector(939, 1261.1, 0), App.Vector(0, 0, 1), 2.2),  # 7
], False)
sketch17.addConstraint([
    Sketcher.Constraint("Coincident", 0, 2, 1, 1),
    Sketcher.Constraint("Coincident", 1, 2, 2, 1),
    Sketcher.Constraint("Coincident", 2, 2, 3, 1),
    Sketcher.Constraint("Coincident", 3, 2, 0, 1),
    Sketcher.Constraint("Vertical", 0),
    Sketcher.Constraint("Horizontal", 1),
    Sketcher.Constraint("Vertical", 2),
    Sketcher.Constraint("Horizontal", 3),
    Sketcher.Constraint("Equal", 4, 5),
    Sketcher.Constraint("Equal", 5, 6),
    Sketcher.Constraint("Equal", 6, 7),
    Sketcher.Constraint("Horizontal", 4, 3, 5, 3),
    Sketcher.Constraint("Horizontal", 6, 3, 7, 3),
    Sketcher.Constraint("Vertical", 4, 3, 6, 3),
    Sketcher.Constraint("Vertical", 5, 3, 7, 3),
    Sketcher.Constraint("Equal", 3, 0),
    Sketcher.Constraint("Diameter", 4, 4.4),
    Sketcher.Constraint("DistanceX", 1, 1, 1, 2, 120.0),
    Sketcher.Constraint("DistanceX", 4, 3, 5, 3, 105.0),
    Sketcher.Constraint("DistanceY", 4, 3, 6, 3, 105.0),
    Sketcher.Constraint("DistanceX", 0, 2, 4, 3, 7.5),
    Sketcher.Constraint("DistanceY", 0, 2, 4, 3, 7.5),
    Sketcher.Constraint("DistanceX", -1, 1, 4, 3, 834.029535),
    Sketcher.Constraint("DistanceY", -1, 1, 4, 3, 1156.123793),
])
pad13 = doc.addObject("PartDesign::Pad", "Pad012")
body13.addObject(pad13)
pad13.Profile = sketch17
pad13.Length = 25
body14 = doc.addObject("PartDesign::Body", "Body013")

# Sketch on XZ plane
sketch18 = doc.addObject("Sketcher::SketchObject", "Sketch017")
body14.addObject(sketch18)
sketch18.AttachmentSupport = (doc.getObject("XZ_Plane013"), [""])
sketch18.MapMode = "FlatFace"
sketch18.addGeometry([
    Part.LineSegment(App.Vector(1302, 1489, 0), App.Vector(1302, 879, 0)),  # 0
    Part.LineSegment(App.Vector(1302, 879, 0), App.Vector(1327, 879, 0)),  # 1
    Part.LineSegment(App.Vector(1327, 879, 0), App.Vector(1427, 979, 0)),  # 2
    Part.LineSegment(App.Vector(1427, 979, 0), App.Vector(1427, 1439, 0)),  # 3
    Part.LineSegment(App.Vector(1427, 1439, 0), App.Vector(1377, 1489, 0)),  # 4
    Part.LineSegment(App.Vector(1377, 1489, 0), App.Vector(1302, 1489, 0)),  # 5
], False)
sketch18.addConstraint([
    Sketcher.Constraint("Coincident", 0, 2, 1, 1),
    Sketcher.Constraint("Coincident", 1, 2, 2, 1),
    Sketcher.Constraint("Coincident", 2, 2, 3, 1),
    Sketcher.Constraint("Coincident", 3, 2, 4, 1),
    Sketcher.Constraint("Coincident", 4, 2, 5, 1),
    Sketcher.Constraint("Coincident", 5, 2, 0, 1),
    Sketcher.Constraint("Vertical", 0),
    Sketcher.Constraint("Horizontal", 1),
    Sketcher.Constraint("Vertical", 3),
    Sketcher.Constraint("Horizontal", 5),
    Sketcher.Constraint("Perpendicular", 2, 4),
    Sketcher.Constraint("DistanceX", 1, 1, 1, 2, 25.0),
    Sketcher.Constraint("DistanceX", 5, 2, 5, 1, 75.0),
    Sketcher.Constraint("DistanceY", 0, 2, 0, 1, 610.0),
    Sketcher.Constraint("DistanceY", 3, 1, 3, 2, 460.0),
    Sketcher.Constraint("Angle", 2, Q("45 deg")),
    Sketcher.Constraint("DistanceX", -1, 1, 0, 2, 1301.867751),
    Sketcher.Constraint("DistanceY", -1, 1, 0, 2, 879.469376),
])
pad14 = doc.addObject("PartDesign::Pad", "Pad013")
body14.addObject(pad14)
pad14.Profile = sketch18
pad14.Length = 3

doc.recompute()
